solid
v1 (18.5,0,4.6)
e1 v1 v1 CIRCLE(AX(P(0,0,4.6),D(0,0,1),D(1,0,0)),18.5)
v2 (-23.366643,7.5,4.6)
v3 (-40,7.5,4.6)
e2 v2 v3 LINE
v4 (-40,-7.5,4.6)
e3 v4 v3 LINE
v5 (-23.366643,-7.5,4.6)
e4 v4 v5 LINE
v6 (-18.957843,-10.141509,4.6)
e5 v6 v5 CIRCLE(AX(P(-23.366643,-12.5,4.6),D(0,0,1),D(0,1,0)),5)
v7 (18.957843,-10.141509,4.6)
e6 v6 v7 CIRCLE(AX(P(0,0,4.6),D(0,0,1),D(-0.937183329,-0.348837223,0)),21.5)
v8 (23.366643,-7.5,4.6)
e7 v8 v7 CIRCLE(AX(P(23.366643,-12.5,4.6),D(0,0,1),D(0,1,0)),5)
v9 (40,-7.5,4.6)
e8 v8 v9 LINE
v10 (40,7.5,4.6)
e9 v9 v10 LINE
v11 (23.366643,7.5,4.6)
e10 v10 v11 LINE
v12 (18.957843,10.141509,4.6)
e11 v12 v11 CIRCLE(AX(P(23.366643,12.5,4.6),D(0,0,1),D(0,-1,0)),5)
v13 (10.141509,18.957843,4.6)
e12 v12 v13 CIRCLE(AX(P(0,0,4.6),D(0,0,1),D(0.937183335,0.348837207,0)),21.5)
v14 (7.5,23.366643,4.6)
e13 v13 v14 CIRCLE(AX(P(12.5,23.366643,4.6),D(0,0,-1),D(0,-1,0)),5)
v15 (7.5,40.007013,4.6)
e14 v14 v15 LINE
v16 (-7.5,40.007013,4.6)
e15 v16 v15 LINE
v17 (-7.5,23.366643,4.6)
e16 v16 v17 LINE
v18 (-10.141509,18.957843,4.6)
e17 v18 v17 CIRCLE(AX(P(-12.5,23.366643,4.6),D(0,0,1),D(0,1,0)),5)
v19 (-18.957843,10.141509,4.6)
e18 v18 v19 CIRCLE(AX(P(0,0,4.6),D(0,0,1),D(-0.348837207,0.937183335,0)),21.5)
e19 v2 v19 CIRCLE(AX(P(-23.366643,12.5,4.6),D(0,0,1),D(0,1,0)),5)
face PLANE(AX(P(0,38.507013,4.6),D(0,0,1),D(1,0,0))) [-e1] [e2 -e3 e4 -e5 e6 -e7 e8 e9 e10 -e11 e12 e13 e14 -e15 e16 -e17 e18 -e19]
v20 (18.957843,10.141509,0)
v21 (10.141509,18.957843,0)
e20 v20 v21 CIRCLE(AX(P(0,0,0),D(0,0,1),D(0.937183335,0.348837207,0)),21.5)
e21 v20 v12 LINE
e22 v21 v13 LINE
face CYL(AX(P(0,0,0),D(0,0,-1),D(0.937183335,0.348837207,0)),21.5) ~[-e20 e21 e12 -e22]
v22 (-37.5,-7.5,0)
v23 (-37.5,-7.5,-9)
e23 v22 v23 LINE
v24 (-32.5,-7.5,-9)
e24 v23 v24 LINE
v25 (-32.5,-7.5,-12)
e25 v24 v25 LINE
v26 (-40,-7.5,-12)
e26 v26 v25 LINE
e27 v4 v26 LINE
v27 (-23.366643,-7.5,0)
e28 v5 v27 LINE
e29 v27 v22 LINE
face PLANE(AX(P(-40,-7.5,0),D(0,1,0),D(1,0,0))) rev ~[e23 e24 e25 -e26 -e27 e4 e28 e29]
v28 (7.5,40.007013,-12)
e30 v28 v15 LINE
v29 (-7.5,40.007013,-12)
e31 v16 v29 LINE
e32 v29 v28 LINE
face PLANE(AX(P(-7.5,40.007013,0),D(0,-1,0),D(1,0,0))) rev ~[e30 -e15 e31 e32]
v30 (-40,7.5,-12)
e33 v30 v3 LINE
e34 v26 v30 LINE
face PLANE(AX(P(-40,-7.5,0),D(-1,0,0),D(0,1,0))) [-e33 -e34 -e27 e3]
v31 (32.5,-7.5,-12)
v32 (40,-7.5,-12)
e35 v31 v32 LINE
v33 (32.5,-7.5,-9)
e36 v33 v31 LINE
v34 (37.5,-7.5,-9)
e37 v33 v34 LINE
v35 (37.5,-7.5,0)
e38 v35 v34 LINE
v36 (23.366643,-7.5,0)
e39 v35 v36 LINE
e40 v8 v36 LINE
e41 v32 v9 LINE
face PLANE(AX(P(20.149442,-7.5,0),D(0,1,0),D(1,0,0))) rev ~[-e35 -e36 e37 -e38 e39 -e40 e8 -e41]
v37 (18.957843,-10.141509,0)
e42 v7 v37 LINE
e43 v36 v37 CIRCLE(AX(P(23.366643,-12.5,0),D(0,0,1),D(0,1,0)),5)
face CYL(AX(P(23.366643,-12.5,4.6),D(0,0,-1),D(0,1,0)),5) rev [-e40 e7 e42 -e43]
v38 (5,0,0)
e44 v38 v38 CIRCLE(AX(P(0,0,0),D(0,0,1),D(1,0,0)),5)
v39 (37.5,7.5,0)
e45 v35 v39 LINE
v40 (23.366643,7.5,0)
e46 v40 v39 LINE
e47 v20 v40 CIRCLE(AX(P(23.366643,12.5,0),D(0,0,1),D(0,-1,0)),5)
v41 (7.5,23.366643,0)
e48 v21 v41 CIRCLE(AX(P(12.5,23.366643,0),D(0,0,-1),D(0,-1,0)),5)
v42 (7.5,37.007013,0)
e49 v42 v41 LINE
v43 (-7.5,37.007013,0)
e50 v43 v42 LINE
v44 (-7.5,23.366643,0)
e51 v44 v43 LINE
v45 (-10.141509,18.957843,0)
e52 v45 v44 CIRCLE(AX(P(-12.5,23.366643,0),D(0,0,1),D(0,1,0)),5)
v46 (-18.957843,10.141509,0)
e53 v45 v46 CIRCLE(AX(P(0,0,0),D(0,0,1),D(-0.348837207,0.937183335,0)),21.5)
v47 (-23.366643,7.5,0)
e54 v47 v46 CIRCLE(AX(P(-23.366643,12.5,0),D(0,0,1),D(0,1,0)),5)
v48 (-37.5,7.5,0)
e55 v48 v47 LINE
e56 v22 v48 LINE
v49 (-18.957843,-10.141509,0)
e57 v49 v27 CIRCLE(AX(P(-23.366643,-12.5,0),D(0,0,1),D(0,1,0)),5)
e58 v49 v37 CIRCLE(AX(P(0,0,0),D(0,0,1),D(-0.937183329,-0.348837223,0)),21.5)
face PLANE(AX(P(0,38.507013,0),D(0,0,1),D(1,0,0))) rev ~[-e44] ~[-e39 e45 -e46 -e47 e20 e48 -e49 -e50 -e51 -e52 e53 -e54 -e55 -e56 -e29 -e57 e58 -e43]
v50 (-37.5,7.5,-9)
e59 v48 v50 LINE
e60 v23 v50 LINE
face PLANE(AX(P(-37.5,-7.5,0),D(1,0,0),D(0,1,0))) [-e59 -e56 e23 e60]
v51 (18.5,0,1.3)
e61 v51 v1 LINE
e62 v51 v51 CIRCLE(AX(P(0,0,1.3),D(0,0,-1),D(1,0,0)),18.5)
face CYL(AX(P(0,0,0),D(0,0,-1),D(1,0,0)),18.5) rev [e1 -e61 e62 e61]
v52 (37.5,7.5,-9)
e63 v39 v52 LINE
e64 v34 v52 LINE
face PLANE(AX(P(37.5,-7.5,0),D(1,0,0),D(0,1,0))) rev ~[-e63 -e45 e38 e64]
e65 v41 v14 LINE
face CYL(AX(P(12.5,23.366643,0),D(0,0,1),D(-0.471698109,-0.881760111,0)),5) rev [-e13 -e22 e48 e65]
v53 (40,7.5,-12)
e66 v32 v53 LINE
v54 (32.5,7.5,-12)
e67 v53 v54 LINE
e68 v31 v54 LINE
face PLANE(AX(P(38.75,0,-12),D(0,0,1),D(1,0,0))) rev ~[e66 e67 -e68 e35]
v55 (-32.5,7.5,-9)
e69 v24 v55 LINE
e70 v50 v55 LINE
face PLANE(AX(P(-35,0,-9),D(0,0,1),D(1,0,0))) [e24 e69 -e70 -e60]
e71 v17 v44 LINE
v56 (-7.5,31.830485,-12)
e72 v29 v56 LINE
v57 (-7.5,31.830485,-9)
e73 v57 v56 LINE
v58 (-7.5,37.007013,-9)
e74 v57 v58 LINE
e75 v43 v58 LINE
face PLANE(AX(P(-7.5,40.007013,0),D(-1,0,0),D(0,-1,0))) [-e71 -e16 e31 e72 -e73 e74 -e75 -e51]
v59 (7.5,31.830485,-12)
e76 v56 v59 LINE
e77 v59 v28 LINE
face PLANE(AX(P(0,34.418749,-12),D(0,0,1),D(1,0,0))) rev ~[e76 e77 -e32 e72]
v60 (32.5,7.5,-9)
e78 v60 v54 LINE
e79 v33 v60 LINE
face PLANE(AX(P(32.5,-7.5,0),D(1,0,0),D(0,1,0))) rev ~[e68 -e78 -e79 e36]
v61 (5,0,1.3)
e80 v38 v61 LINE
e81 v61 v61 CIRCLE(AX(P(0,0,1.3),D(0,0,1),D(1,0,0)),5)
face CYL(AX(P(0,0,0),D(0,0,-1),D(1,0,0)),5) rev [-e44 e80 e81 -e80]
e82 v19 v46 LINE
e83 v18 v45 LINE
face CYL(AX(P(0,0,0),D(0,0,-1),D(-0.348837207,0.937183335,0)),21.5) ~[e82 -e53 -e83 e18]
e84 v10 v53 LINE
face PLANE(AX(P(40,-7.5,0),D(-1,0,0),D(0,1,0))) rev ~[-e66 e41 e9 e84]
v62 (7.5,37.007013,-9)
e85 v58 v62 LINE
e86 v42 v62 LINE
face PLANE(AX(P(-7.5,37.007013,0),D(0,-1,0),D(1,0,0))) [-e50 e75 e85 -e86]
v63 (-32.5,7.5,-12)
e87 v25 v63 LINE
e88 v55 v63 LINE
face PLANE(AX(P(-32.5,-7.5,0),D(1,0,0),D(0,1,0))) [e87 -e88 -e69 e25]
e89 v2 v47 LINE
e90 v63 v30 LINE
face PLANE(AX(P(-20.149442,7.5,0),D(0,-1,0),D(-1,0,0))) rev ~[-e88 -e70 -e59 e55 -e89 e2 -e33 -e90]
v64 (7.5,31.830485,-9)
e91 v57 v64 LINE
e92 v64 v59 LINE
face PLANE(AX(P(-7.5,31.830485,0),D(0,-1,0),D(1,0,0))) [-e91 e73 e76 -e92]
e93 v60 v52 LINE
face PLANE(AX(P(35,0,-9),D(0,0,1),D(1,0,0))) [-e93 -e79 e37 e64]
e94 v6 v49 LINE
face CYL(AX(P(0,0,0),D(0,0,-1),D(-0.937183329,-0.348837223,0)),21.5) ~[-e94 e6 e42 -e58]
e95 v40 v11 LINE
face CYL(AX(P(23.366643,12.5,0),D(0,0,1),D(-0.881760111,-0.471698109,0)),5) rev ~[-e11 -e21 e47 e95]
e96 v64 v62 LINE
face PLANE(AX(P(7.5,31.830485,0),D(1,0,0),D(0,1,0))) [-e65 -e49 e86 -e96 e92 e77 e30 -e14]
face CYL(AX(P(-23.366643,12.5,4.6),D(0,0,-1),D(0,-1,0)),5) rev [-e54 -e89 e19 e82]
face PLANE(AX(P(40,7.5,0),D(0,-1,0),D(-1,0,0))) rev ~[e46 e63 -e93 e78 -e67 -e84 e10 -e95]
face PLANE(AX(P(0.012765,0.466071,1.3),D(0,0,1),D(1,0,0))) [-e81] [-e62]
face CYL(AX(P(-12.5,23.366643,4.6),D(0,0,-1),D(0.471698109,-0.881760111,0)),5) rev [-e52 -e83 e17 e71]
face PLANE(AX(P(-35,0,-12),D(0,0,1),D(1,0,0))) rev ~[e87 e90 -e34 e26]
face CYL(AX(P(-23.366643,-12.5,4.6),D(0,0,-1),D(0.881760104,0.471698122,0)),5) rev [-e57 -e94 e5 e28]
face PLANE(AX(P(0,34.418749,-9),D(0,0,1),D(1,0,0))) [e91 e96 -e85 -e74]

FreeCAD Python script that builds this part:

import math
import FreeCAD as App
import Part
import Sketcher
Q = App.Units.Quantity


def edges_at(feature, points):
    """Names of the edges that pass closest to the given points."""
    edges = feature.Shape.Edges
    near = lambda p: min(range(len(edges)), key=lambda i: edges[i].distToShape(Part.Vertex(*p))[0])
    return sorted({f"Edge{near(p) + 1}" for p in points})


def add_polygon(sketch, points):
    """Adds a closed chain of lines whose ends are joined by coincident constraints."""
    first, n = sketch.GeometryCount, len(points)
    for a, b in zip(points, points[1:] + points[:1]):
        sketch.addGeometry(Part.LineSegment(App.Vector(*a, 0), App.Vector(*b, 0)), False)
    for i in range(n):
        sketch.addConstraint(Sketcher.Constraint("Coincident", first + i, 2, first + (i + 1) % n, 1))

doc = App.newDocument("Part")
body = doc.addObject("PartDesign::Body", "Body")

# Sketch on XY plane
sketch1 = doc.addObject("Sketcher::SketchObject", "Sketch")
body.addObject(sketch1)
sketch1.AttachmentSupport = (doc.XY_Plane, [""])
sketch1.MapMode = "FlatFace"
sketch1.addGeometry(Part.ArcOfCircle(Part.Circle(App.Vector(0, 0, 0), App.Vector(0, 0, 1), 21), math.radians(-20), math.radians(0)), False)
sketch1.addGeometry(Part.ArcOfCircle(Part.Circle(App.Vector(0, 0, 0), App.Vector(0, 0, 1), 21), math.radians(0), math.radians(20)), False)
sketch1.addGeometry(Part.ArcOfCircle(Part.Circle(App.Vector(0, 0, 0), App.Vector(0, 0, 1), 22), math.radians(20), math.radians(70)), False)
sketch1.addGeometry(Part.ArcOfCircle(Part.Circle(App.Vector(0, 0, 0), App.Vector(0, 0, 1), 22), math.radians(70), math.radians(110)), False)
sketch1.addGeometry(Part.ArcOfCircle(Part.Circle(App.Vector(0, 0, 0), App.Vector(0, 0, 1), 22), math.radians(110), math.radians(160)), False)
sketch1.addGeometry(Part.ArcOfCircle(Part.Circle(App.Vector(0, 0, 0), App.Vector(0, 0, 1), 22), math.radians(160), math.radians(200)), False)
sketch1.addGeometry(Part.ArcOfCircle(Part.Circle(App.Vector(0, 0, 0), App.Vector(0, 0, 1), 22), math.radians(-160), math.radians(-20)), False)
sketch1.addGeometry(Part.Circle(App.Vector(0, 0, 0), App.Vector(0, 0, 1), 5), False)
sketch1.addConstraint(Sketcher.Constraint("Tangent", 0, 2, 1, 1))
sketch1.addConstraint(Sketcher.Constraint("Tangent", 1, 2, 2, 1))
sketch1.addConstraint(Sketcher.Constraint("Tangent", 2, 2, 3, 1))
sketch1.addConstraint(Sketcher.Constraint("Tangent", 3, 2, 4, 1))
sketch1.addConstraint(Sketcher.Constraint("Tangent", 4, 2, 5, 1))
sketch1.addConstraint(Sketcher.Constraint("Tangent", 5, 2, 6, 1))
sketch1.addConstraint(Sketcher.Constraint("Tangent", 6, 2, 0, 1))
sketch1.addConstraint(Sketcher.Constraint("Coincident", 0, 3, -1, 1))
sketch1.addConstraint(Sketcher.Constraint("Coincident", 2, 3, -1, 1))
sketch1.addConstraint(Sketcher.Constraint("Coincident", 4, 3, -1, 1))
sketch1.addConstraint(Sketcher.Constraint("Coincident", 7, 3, -1, 1))
sketch1.addConstraint(Sketcher.Constraint("PointOnObject", 0, 2, -1))
sketch1.addConstraint(Sketcher.Constraint("Horizontal", 2, 2, 3, 2))
sketch1.addConstraint(Sketcher.Constraint("Horizontal", 1, 2, 4, 2))
sketch1.addConstraint(Sketcher.Constraint("Horizontal", 5, 2, 6, 2))
sketch1.addConstraint(Sketcher.Constraint("Vertical", 4, 2, 5, 2))
sketch1.addConstraint(Sketcher.Constraint("Diameter", 7, Q("10 mm")))
sketch1.addConstraint(Sketcher.Constraint("Radius", 2, Q("21.5 mm")))
sketch1.addConstraint(Sketcher.Constraint("DistanceX", 3, 2, 2, 2, Q("15 mm")))
sketch1.addConstraint(Sketcher.Constraint("DistanceY", 5, 2, 4, 2, Q("15 mm")))
pad1 = doc.addObject("PartDesign::Pad", "Pad")
body.addObject(pad1)
pad1.Profile = sketch1
pad1.Length = 1.3

# Sketch on XY plane
sketch2 = doc.addObject("Sketcher::SketchObject", "Sketch001")
body.addObject(sketch2)
sketch2.AttachmentSupport = (doc.XY_Plane, [""])
sketch2.MapMode = "FlatFace"
sketch2.addGeometry(Part.ArcOfCircle(Part.Circle(App.Vector(0, 0, 0), App.Vector(0, 0, 1), 21), math.radians(-20), math.radians(0)), False)
sketch2.addGeometry(Part.ArcOfCircle(Part.Circle(App.Vector(0, 0, 0), App.Vector(0, 0, 1), 21), math.radians(0), math.radians(20)), False)
sketch2.addGeometry(Part.ArcOfCircle(Part.Circle(App.Vector(0, 0, 0), App.Vector(0, 0, 1), 22), math.radians(20), math.radians(70)), False)
sketch2.addGeometry(Part.ArcOfCircle(Part.Circle(App.Vector(0, 0, 0), App.Vector(0, 0, 1), 22), math.radians(70), math.radians(110)), False)
sketch2.addGeometry(Part.ArcOfCircle(Part.Circle(App.Vector(0, 0, 0), App.Vector(0, 0, 1), 22), math.radians(110), math.radians(160)), False)
sketch2.addGeometry(Part.ArcOfCircle(Part.Circle(App.Vector(0, 0, 0), App.Vector(0, 0, 1), 22), math.radians(160), math.radians(200)), False)
sketch2.addGeometry(Part.ArcOfCircle(Part.Circle(App.Vector(0, 0, 0), App.Vector(0, 0, 1), 22), math.radians(-160), math.radians(-20)), False)
sketch2.addGeometry(Part.Circle(App.Vector(0, 0, 0), App.Vector(0, 0, 1), 18), False)
sketch2.addConstraint(Sketcher.Constraint("Tangent", 0, 2, 1, 1))
sketch2.addConstraint(Sketcher.Constraint("Tangent", 1, 2, 2, 1))
sketch2.addConstraint(Sketcher.Constraint("Tangent", 2, 2, 3, 1))
sketch2.addConstraint(Sketcher.Constraint("Tangent", 3, 2, 4, 1))
sketch2.addConstraint(Sketcher.Constraint("Tangent", 4, 2, 5, 1))
sketch2.addConstraint(Sketcher.Constraint("Tangent", 5, 2, 6, 1))
sketch2.addConstraint(Sketcher.Constraint("Tangent", 6, 2, 0, 1))
sketch2.addConstraint(Sketcher.Constraint("Coincident", 0, 3, -1, 1))
sketch2.addConstraint(Sketcher.Constraint("Coincident", 2, 3, -1, 1))
sketch2.addConstraint(Sketcher.Constraint("Coincident", 4, 3, -1, 1))
sketch2.addConstraint(Sketcher.Constraint("Coincident", 7, 3, -1, 1))
sketch2.addConstraint(Sketcher.Constraint("PointOnObject", 0, 2, -1))
sketch2.addConstraint(Sketcher.Constraint("Horizontal", 2, 2, 3, 2))
sketch2.addConstraint(Sketcher.Constraint("Horizontal", 1, 2, 4, 2))
sketch2.addConstraint(Sketcher.Constraint("Horizontal", 5, 2, 6, 2))
sketch2.addConstraint(Sketcher.Constraint("Vertical", 4, 2, 5, 2))
sketch2.addConstraint(Sketcher.Constraint("Diameter", 7, Q("37 mm")))
sketch2.addConstraint(Sketcher.Constraint("Radius", 2, Q("21.5 mm")))
sketch2.addConstraint(Sketcher.Constraint("DistanceX", 3, 2, 2, 2, Q("15 mm")))
sketch2.addConstraint(Sketcher.Constraint("DistanceY", 5, 2, 4, 2, Q("15 mm")))
pad2 = doc.addObject("PartDesign::Pad", "Pad001")
body.addObject(pad2)
pad2.Profile = sketch2
pad2.Length = 4.6

# Sketch on XY plane
sketch3 = doc.addObject("Sketcher::SketchObject", "Sketch002")
body.addObject(sketch3)
sketch3.AttachmentSupport = (doc.XY_Plane, [""])
sketch3.MapMode = "FlatFace"
sketch3.addGeometry(Part.LineSegment(App.Vector(-8, 40, 0), App.Vector(-8, 20, 0)), False)
sketch3.addGeometry(Part.ArcOfCircle(Part.Circle(App.Vector(0, 0, 0), App.Vector(0, 0, 1), 22), math.radians(70), math.radians(110)), False)
sketch3.addGeometry(Part.LineSegment(App.Vector(8, 20, 0), App.Vector(8, 40, 0)), False)
sketch3.addGeometry(Part.LineSegment(App.Vector(8, 40, 0), App.Vector(-8, 40, 0)), False)
sketch3.addGeometry(Part.LineSegment(App.Vector(-40, 8, 0), App.Vector(-40, -8, 0)), False)
sketch3.addGeometry(Part.LineSegment(App.Vector(-40, -8, 0), App.Vector(-20, -8, 0)), False)
sketch3.addGeometry(Part.ArcOfCircle(Part.Circle(App.Vector(0, 0, 0), App.Vector(0, 0, 1), 22), math.radians(160), math.radians(200)), False)
sketch3.addGeometry(Part.LineSegment(App.Vector(-20, 8, 0), App.Vector(-40, 8, 0)), False)
sketch3.addGeometry(Part.ArcOfCircle(Part.Circle(App.Vector(0, 0, 0), App.Vector(0, 0, 1), 21), math.radians(0), math.radians(20)), False)
sketch3.addGeometry(Part.ArcOfCircle(Part.Circle(App.Vector(0, 0, 0), App.Vector(0, 0, 1), 21), math.radians(-20), math.radians(0)), False)
sketch3.addGeometry(Part.LineSegment(App.Vector(20, -8, 0), App.Vector(40, -8, 0)), False)
sketch3.addGeometry(Part.LineSegment(App.Vector(40, -8, 0), App.Vector(40, 8, 0)), False)
sketch3.addGeometry(Part.LineSegment(App.Vector(40, 8, 0), App.Vector(20, 8, 0)), False)
sketch3.addConstraint(Sketcher.Constraint("Coincident", 0, 2, 1, 2))
sketch3.addConstraint(Sketcher.Constraint("Coincident", 1, 1, 2, 1))
sketch3.addConstraint(Sketcher.Constraint("Coincident", 2, 2, 3, 1))
sketch3.addConstraint(Sketcher.Constraint("Coincident", 3, 2, 0, 1))
sketch3.addConstraint(Sketcher.Constraint("Coincident", 4, 2, 5, 1))
sketch3.addConstraint(Sketcher.Constraint("Coincident", 5, 2, 6, 2))
sketch3.addConstraint(Sketcher.Constraint("Coincident", 6, 1, 7, 1))
sketch3.addConstraint(Sketcher.Constraint("Coincident", 7, 2, 4, 1))
sketch3.addConstraint(Sketcher.Constraint("Tangent", 8, 1, 9, 2))
sketch3.addConstraint(Sketcher.Constraint("Coincident", 9, 1, 10, 1))
sketch3.addConstraint(Sketcher.Constraint("Coincident", 10, 2, 11, 1))
sketch3.addConstraint(Sketcher.Constraint("Coincident", 11, 2, 12, 1))
sketch3.addConstraint(Sketcher.Constraint("Coincident", 12, 2, 8, 2))
sketch3.addConstraint(Sketcher.Constraint("Vertical", 0))
sketch3.addConstraint(Sketcher.Constraint("Vertical", 2))
sketch3.addConstraint(Sketcher.Constraint("Horizontal", 3))
sketch3.addConstraint(Sketcher.Constraint("Vertical", 4))
sketch3.addConstraint(Sketcher.Constraint("Horizontal", 5))
sketch3.addConstraint(Sketcher.Constraint("Horizontal", 7))
sketch3.addConstraint(Sketcher.Constraint("Horizontal", 10))
sketch3.addConstraint(Sketcher.Constraint("Vertical", 11))
sketch3.addConstraint(Sketcher.Constraint("Horizontal", 12))
sketch3.addConstraint(Sketcher.Constraint("Coincident", 1, 3, -1, 1))
sketch3.addConstraint(Sketcher.Constraint("Coincident", 6, 3, -1, 1))
sketch3.addConstraint(Sketcher.Constraint("Coincident", 8, 3, -1, 1))
sketch3.addConstraint(Sketcher.Constraint("Equal", 1, 6))
sketch3.addConstraint(Sketcher.Constraint("Equal", 8, 9))
sketch3.addConstraint(Sketcher.Constraint("Symmetric", 6, 1, 9, 1, -1, 1))
sketch3.addConstraint(Sketcher.Constraint("Symmetric", 4, 2, 11, 2, -1, 1))
sketch3.addConstraint(Sketcher.Constraint("PointOnObject", 8, 1, -1))
sketch3.addConstraint(Sketcher.Constraint("Horizontal", 0, 2, 1, 1))
sketch3.addConstraint(Sketcher.Constraint("Horizontal", 5, 2, 9, 1))
sketch3.addConstraint(Sketcher.Constraint("Equal", 3, 4))
sketch3.addConstraint(Sketcher.Constraint("DistanceX", 3, 2, 3, 1, Q("15 mm")))
sketch3.addConstraint(Sketcher.Constraint("DistanceX", 4, 2, -1, 1, Q("40 mm")))
sketch3.addConstraint(Sketcher.Constraint("DistanceX", 1, 1, 8, 1, Q("14 mm")))
sketch3.addConstraint(Sketcher.Constraint("DistanceY", 0, 2, 0, 1, Q("19.857571 mm")))
pad3 = doc.addObject("PartDesign::Pad", "Pad002")
body.addObject(pad3)
pad3.Profile = sketch3
pad3.Length = 4.6

# Sketch on XY plane
sketch4 = doc.addObject("Sketcher::SketchObject", "Sketch003")
body.addObject(sketch4)
sketch4.AttachmentSupport = (doc.XY_Plane, [""])
sketch4.MapMode = "FlatFace"
add_polygon(sketch4, [(-8, 32), (8, 32), (8, 40), (-8, 40)])  # lines 0-3
add_polygon(sketch4, [(40, -8), (40, 8), (32, 8), (32, -8)])  # lines 4-7
add_polygon(sketch4, [(-32, -8), (-32, 8), (-40, 8), (-40, -8)])  # lines 8-11
sketch4.addConstraint(Sketcher.Constraint("Horizontal", 0))
sketch4.addConstraint(Sketcher.Constraint("Vertical", 1))
sketch4.addConstraint(Sketcher.Constraint("Horizontal", 2))
sketch4.addConstraint(Sketcher.Constraint("Vertical", 3))
sketch4.addConstraint(Sketcher.Constraint("Vertical", 4))
sketch4.addConstraint(Sketcher.Constraint("Horizontal", 5))
sketch4.addConstraint(Sketcher.Constraint("Vertical", 6))
sketch4.addConstraint(Sketcher.Constraint("Horizontal", 7))
sketch4.addConstraint(Sketcher.Constraint("Vertical", 8))
sketch4.addConstraint(Sketcher.Constraint("Horizontal", 9))
sketch4.addConstraint(Sketcher.Constraint("Vertical", 10))
sketch4.addConstraint(Sketcher.Constraint("Horizontal", 11))
sketch4.addConstraint(Sketcher.Constraint("Symmetric", 6, 2, 8, 2, -1, 1))
sketch4.addConstraint(Sketcher.Constraint("Symmetric", 4, 2, 10, 2, -1, 1))
sketch4.addConstraint(Sketcher.Constraint("Horizontal", 5, 2, 8, 2))
sketch4.addConstraint(Sketcher.Constraint("Equal", 2, 4))
sketch4.addConstraint(Sketcher.Constraint("DistanceX", 0, 1, 0, 2, Q("15 mm")))
sketch4.addConstraint(Sketcher.Constraint("DistanceX", 5, 2, 5, 1, Q("7.5 mm")))
sketch4.addConstraint(Sketcher.Constraint("DistanceX", -1, 1, 4, 2, Q("40 mm")))
sketch4.addConstraint(Sketcher.Constraint("DistanceX", 0, 2, 5, 2, Q("25 mm")))
sketch4.addConstraint(Sketcher.Constraint("DistanceY", 1, 1, 1, 2, Q("8.176528 mm")))
sketch4.addConstraint(Sketcher.Constraint("DistanceY", -1, 1, 0, 2, Q("31.830485 mm")))
pad4 = doc.addObject("PartDesign::Pad", "Pad003")
body.addObject(pad4)
pad4.Profile = sketch4
pad4.Length = 12
pad4.Reversed = True

# Sketch on XY plane
sketch5 = doc.addObject("Sketcher::SketchObject", "Sketch004")
body.addObject(sketch5)
sketch5.AttachmentSupport = (doc.XY_Plane, [""])
sketch5.MapMode = "FlatFace"
add_polygon(sketch5, [(32, 8), (32, -8), (38, -8), (38, 8)])  # lines 0-3
add_polygon(sketch5, [(-38, 8), (-38, -8), (-32, -8), (-32, 8)])  # lines 4-7
add_polygon(sketch5, [(-8, 37), (-8, 32), (8, 32), (8, 37)])  # lines 8-11
sketch5.addConstraint(Sketcher.Constraint("Vertical", 0))
sketch5.addConstraint(Sketcher.Constraint("Horizontal", 1))
sketch5.addConstraint(Sketcher.Constraint("Vertical", 2))
sketch5.addConstraint(Sketcher.Constraint("Horizontal", 3))
sketch5.addConstraint(Sketcher.Constraint("Vertical", 4))
sketch5.addConstraint(Sketcher.Constraint("Horizontal", 5))
sketch5.addConstraint(Sketcher.Constraint("Vertical", 6))
sketch5.addConstraint(Sketcher.Constraint("Horizontal", 7))
sketch5.addConstraint(Sketcher.Constraint("Vertical", 8))
sketch5.addConstraint(Sketcher.Constraint("Horizontal", 9))
sketch5.addConstraint(Sketcher.Constraint("Vertical", 10))
sketch5.addConstraint(Sketcher.Constraint("Horizontal", 11))
sketch5.addConstraint(Sketcher.Constraint("Symmetric", 2, 2, 4, 2, -1, 1))
sketch5.addConstraint(Sketcher.Constraint("Symmetric", 0, 2, 6, 2, -1, 1))
sketch5.addConstraint(Sketcher.Constraint("Horizontal", 1, 2, 4, 2))
sketch5.addConstraint(Sketcher.Constraint("Equal", 11, 0))
sketch5.addConstraint(Sketcher.Constraint("DistanceX", 1, 1, 1, 2, Q("5 mm")))
sketch5.addConstraint(Sketcher.Constraint("DistanceX", 9, 1, 9, 2, Q("15 mm")))
sketch5.addConstraint(Sketcher.Constraint("DistanceX", 4, 2, 0, 2, Q("70 mm")))
sketch5.addConstraint(Sketcher.Constraint("DistanceX", 6, 2, 8, 2, Q("25 mm")))
sketch5.addConstraint(Sketcher.Constraint("DistanceY", 8, 2, 8, 1, Q("5.176528 mm")))
sketch5.addConstraint(Sketcher.Constraint("DistanceY", -1, 1, 8, 2, Q("31.830485 mm")))
pocket1 = doc.addObject("PartDesign::Pocket", "Pocket")
body.addObject(pocket1)
pocket1.Profile = sketch5
pocket1.Length = 9
doc.recompute()

fillet = doc.addObject("PartDesign::Fillet", "Fillet")
body.addObject(fillet)
fillet.Base = (pocket1, edges_at(pocket1, [
    (7.5, 20.149, 2.3),
    (20.149, -7.5, 2.3),
    (20.149, 7.5, 2.3),
    (-7.5, 20.149, 2.3),
    (-20.149, 7.5, 2.3),
    (-20.149, -7.5, 2.3),
]))
fillet.Radius = 5

doc.recompute()
